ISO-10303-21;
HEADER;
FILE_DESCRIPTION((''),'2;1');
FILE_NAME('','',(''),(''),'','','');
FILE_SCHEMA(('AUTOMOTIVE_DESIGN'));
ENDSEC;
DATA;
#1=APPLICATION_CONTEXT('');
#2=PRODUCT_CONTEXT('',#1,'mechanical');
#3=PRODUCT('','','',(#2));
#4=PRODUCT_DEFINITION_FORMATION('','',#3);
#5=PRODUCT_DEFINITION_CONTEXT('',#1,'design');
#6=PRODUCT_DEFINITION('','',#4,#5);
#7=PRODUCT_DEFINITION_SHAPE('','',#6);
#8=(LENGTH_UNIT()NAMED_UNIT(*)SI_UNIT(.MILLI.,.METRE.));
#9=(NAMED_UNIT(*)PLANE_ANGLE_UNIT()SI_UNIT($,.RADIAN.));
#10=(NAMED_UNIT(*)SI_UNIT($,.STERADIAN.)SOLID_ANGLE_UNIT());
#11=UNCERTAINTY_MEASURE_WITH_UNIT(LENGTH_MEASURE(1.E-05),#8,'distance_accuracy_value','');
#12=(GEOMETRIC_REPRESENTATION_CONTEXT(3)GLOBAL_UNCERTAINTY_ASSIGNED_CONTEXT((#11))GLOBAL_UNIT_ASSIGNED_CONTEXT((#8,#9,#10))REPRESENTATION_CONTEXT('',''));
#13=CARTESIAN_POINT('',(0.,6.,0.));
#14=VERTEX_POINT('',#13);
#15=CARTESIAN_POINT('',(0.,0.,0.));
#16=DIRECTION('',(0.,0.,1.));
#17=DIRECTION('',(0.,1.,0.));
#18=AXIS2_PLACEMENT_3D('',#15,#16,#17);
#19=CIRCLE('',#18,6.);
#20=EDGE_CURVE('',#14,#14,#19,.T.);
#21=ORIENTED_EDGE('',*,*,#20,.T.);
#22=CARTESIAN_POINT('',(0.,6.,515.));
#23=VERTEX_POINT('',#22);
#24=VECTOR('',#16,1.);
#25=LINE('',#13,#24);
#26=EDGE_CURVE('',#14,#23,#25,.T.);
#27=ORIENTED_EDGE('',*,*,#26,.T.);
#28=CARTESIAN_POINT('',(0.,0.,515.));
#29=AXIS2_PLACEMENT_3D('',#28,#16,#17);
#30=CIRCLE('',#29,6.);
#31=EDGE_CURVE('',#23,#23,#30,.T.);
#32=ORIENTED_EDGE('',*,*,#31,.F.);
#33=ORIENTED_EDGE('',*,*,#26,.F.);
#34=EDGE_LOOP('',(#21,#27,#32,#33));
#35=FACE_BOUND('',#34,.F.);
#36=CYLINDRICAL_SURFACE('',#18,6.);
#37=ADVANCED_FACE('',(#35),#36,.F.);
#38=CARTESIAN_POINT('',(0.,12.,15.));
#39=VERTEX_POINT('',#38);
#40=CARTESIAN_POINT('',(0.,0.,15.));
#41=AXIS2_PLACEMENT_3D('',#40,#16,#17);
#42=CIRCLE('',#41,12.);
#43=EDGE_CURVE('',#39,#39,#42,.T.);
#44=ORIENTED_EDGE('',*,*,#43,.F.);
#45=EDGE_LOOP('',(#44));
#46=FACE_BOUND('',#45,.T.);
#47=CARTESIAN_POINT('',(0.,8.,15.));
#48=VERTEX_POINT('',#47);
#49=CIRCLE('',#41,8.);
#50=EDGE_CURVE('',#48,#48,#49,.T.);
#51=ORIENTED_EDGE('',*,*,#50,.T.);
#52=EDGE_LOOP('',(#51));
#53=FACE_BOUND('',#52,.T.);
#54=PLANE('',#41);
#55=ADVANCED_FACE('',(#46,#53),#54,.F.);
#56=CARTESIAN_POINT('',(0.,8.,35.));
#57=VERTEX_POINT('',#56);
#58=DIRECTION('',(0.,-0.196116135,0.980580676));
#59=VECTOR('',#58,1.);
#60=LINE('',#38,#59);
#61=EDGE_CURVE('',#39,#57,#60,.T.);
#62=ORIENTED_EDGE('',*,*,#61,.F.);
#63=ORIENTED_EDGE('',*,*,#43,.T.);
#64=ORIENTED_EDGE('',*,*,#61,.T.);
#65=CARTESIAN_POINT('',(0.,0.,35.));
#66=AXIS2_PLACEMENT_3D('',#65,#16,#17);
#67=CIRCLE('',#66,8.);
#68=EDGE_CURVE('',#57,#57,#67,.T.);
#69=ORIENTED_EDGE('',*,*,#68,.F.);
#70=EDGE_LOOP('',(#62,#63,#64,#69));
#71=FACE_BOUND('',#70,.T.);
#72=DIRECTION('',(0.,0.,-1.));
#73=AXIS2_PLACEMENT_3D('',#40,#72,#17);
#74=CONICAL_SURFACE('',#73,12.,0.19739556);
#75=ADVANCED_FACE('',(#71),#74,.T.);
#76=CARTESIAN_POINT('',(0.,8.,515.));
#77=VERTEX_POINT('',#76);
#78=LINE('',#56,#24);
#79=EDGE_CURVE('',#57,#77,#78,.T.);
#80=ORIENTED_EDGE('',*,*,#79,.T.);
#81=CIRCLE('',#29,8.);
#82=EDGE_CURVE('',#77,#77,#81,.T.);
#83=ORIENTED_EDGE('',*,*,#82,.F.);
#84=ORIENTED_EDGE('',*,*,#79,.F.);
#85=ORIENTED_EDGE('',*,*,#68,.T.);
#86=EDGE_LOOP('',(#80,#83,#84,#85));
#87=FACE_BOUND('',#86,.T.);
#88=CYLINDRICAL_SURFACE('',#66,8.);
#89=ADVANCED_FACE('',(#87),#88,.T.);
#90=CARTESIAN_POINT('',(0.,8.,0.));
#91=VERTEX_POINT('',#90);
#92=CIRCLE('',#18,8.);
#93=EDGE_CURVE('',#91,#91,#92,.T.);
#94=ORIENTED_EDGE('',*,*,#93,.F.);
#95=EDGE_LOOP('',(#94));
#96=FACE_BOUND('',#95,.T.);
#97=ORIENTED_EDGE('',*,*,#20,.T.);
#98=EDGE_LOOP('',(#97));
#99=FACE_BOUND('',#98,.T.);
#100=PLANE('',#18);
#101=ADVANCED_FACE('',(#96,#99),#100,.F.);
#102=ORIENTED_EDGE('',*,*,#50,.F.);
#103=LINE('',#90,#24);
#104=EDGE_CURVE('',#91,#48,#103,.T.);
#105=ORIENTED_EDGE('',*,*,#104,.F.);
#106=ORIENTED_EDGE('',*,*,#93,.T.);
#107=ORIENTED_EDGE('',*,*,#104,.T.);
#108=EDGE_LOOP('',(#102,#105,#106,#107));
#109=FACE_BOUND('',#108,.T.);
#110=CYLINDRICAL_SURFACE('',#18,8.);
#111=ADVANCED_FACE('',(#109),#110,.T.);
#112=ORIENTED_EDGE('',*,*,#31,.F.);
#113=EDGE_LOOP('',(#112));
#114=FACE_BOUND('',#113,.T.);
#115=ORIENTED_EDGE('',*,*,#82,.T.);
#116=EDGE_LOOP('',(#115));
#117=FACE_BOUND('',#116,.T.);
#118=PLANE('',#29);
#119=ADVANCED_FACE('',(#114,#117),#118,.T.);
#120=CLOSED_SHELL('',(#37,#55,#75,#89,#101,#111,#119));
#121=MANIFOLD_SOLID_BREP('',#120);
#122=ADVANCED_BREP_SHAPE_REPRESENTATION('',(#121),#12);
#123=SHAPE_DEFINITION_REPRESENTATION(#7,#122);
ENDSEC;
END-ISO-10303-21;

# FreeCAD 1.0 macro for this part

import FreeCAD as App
import Part
import Sketcher

V = App.Vector
Q = App.Units.Quantity


def add_polygon(sketch, points):
    """Adds a closed chain of lines whose ends are joined by coincident constraints."""
    first, n = sketch.GeometryCount, len(points)
    for a, b in zip(points, points[1:] + points[:1]):
        sketch.addGeometry(Part.LineSegment(App.Vector(*a, 0), App.Vector(*b, 0)), False)
    for i in range(n):
        sketch.addConstraint(Sketcher.Constraint("Coincident", first + i, 2, first + (i + 1) % n, 1))

doc = App.newDocument("Part")
body = doc.addObject("PartDesign::Body", "Body")

# Sketch on YZ plane
sketch1 = doc.addObject("Sketcher::SketchObject", "Sketch")
body.addObject(sketch1)
sketch1.AttachmentSupport = (doc.YZ_Plane, [""])
sketch1.MapMode = "FlatFace"
add_polygon(sketch1, [(6, 515), (6, 0), (8, 0), (8, 15), (12, 15), (8, 35), (8, 515)])  # lines 0-6
sketch1.addConstraint([
    Sketcher.Constraint("Vertical", 0),
    Sketcher.Constraint("Horizontal", 1),
    Sketcher.Constraint("Vertical", 2),
    Sketcher.Constraint("Horizontal", 3),
    Sketcher.Constraint("Vertical", 5),
    Sketcher.Constraint("Horizontal", 6),
    Sketcher.Constraint("PointOnObject", 0, 2, -1),
    Sketcher.Constraint("Vertical", 2, 2, 4, 2),
    Sketcher.Constraint("DistanceX", 3, 1, 3, 2, Q("4 mm")),
    Sketcher.Constraint("DistanceY", 2, 1, 2, 2, Q("15 mm")),
    Sketcher.Constraint("DistanceX", -1, 1, 3, 2, Q("12 mm")),
    Sketcher.Constraint("DistanceY", 2, 2, 4, 2, Q("20 mm")),
    Sketcher.Constraint("DistanceY", 2, 2, 5, 2, Q("500 mm")),
    Sketcher.Constraint("DistanceX", 1, 1, 1, 2, Q("2 mm")),
])
revolution = doc.addObject("PartDesign::Revolution", "Revolution")
body.addObject(revolution)
revolution.Profile = sketch1
revolution.ReferenceAxis = (sketch1, ["V_Axis"])
revolution.Angle = 360

doc.recompute()
